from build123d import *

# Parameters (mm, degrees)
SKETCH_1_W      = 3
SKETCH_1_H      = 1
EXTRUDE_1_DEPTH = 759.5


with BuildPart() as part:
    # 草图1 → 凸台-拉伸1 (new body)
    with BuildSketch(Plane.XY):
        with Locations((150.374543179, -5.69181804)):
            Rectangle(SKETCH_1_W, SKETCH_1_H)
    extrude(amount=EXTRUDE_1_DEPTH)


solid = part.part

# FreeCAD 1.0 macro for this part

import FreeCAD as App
import Part
import Sketcher
from FreeCAD import Vector
Q = App.Units.Quantity

doc = App.newDocument("Part")
body = doc.addObject("PartDesign::Body", "Body")

sketch1 = body.newObject("Sketcher::SketchObject", "Sketch")
sketch1.AttachmentSupport = (doc.getObject("XY_Plane"), [""])
sketch1.MapMode = "FlatFace"
sketch1.addGeometry(Part.LineSegment(Vector(148.874543, -5.191818, 0), Vector(148.874543, -6.191818, 0)), False)
sketch1.addGeometry(Part.LineSegment(Vector(148.874543, -6.191818, 0), Vector(151.874543, -6.191818, 0)), False)
sketch1.addGeometry(Part.LineSegment(Vector(151.874543, -6.191818, 0), Vector(151.874543, -5.191818, 0)), False)
sketch1.addGeometry(Part.LineSegment(Vector(151.874543, -5.191818, 0), Vector(148.874543, -5.191818, 0)), False)
sketch1.addConstraint(Sketcher.Constraint("Coincident", 0, 2, 1, 1))
sketch1.addConstraint(Sketcher.Constraint("Coincident", 1, 2, 2, 1))
sketch1.addConstraint(Sketcher.Constraint("Coincident", 2, 2, 3, 1))
sketch1.addConstraint(Sketcher.Constraint("Coincident", 3, 2, 0, 1))
sketch1.addConstraint(Sketcher.Constraint("Vertical", 0))
sketch1.addConstraint(Sketcher.Constraint("Horizontal", 1))
sketch1.addConstraint(Sketcher.Constraint("Vertical", 2))
sketch1.addConstraint(Sketcher.Constraint("Horizontal", 3))
sketch1.addConstraint(Sketcher.Constraint("DistanceX", 1, 1, 1, 2, Q("3 mm")))
sketch1.addConstraint(Sketcher.Constraint("DistanceY", 0, 2, 0, 1, Q("1 mm")))
sketch1.addConstraint(Sketcher.Constraint("DistanceY", 0, 2, -1, 1, Q("6.191818 mm")))
sketch1.addConstraint(Sketcher.Constraint("DistanceX", -1, 1, 0, 2, Q("148.874543 mm")))
pad1 = body.newObject("PartDesign::Pad", "Pad")
pad1.Profile = sketch1
pad1.Length = 759.5

doc.recompute()
